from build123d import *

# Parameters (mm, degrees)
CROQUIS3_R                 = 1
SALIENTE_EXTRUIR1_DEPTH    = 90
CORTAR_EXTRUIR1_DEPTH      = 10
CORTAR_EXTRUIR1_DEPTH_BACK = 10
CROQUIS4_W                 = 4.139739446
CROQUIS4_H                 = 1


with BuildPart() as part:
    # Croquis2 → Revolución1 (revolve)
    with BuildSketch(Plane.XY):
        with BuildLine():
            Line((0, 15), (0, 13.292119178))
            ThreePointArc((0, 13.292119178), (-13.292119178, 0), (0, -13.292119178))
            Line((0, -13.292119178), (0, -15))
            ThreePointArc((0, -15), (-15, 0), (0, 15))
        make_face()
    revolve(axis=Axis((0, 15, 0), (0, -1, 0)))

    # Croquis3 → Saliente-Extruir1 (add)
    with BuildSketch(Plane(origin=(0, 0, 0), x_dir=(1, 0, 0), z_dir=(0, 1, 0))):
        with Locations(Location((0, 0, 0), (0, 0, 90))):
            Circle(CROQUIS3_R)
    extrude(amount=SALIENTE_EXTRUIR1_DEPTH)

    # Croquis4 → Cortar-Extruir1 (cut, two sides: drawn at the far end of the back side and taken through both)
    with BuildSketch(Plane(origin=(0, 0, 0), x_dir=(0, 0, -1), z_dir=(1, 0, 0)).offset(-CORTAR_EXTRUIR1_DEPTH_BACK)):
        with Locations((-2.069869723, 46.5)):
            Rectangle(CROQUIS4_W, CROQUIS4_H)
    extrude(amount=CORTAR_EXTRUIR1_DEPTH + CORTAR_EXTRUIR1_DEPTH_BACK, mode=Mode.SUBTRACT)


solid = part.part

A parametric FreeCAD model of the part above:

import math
import FreeCAD as App
import Part
import Sketcher
from FreeCAD import Vector
Q = App.Units.Quantity


def add_polygon(sketch, points):
    """Adds a closed chain of lines whose ends are joined by coincident constraints."""
    first, n = sketch.GeometryCount, len(points)
    for a, b in zip(points, points[1:] + points[:1]):
        sketch.addGeometry(Part.LineSegment(App.Vector(*a, 0), App.Vector(*b, 0)), False)
    for i in range(n):
        sketch.addConstraint(Sketcher.Constraint("Coincident", first + i, 2, first + (i + 1) % n, 1))

doc = App.newDocument("Part")
body = doc.addObject("PartDesign::Body", "Body")

sketch1 = body.newObject("Sketcher::SketchObject", "Sketch")
sketch1.AttachmentSupport = (doc.getObject("XY_Plane"), [""])
sketch1.MapMode = "FlatFace"
sketch1.addGeometry(Part.LineSegment(Vector(0, 13.3, 0), Vector(0, 15, 0)), False)
sketch1.addGeometry(Part.ArcOfCircle(Part.Circle(Vector(0, 0, 0), Vector(0, 0, 1), 15), math.radians(90), math.radians(270)), False)
sketch1.addGeometry(Part.LineSegment(Vector(0, -15, 0), Vector(0, -13.3, 0)), False)
sketch1.addGeometry(Part.ArcOfCircle(Part.Circle(Vector(0, 0, 0), Vector(0, 0, 1), 13.3), math.radians(90), math.radians(270)), False)
sketch1.addConstraint(Sketcher.Constraint("Coincident", 0, 2, 1, 1))
sketch1.addConstraint(Sketcher.Constraint("Coincident", 1, 2, 2, 1))
sketch1.addConstraint(Sketcher.Constraint("Coincident", 2, 2, 3, 2))
sketch1.addConstraint(Sketcher.Constraint("Coincident", 3, 1, 0, 1))
sketch1.addConstraint(Sketcher.Constraint("Vertical", 0))
sketch1.addConstraint(Sketcher.Constraint("Vertical", 2))
sketch1.addConstraint(Sketcher.Constraint("Coincident", 1, 3, -1, 1))
sketch1.addConstraint(Sketcher.Constraint("Coincident", 3, 3, -1, 1))
sketch1.addConstraint(Sketcher.Constraint("PointOnObject", 0, 2, -2))
sketch1.addConstraint(Sketcher.Constraint("PointOnObject", 1, 2, -2))
sketch1.addConstraint(Sketcher.Constraint("Radius", 1, Q("15 mm")))
sketch1.addConstraint(Sketcher.Constraint("Radius", 3, Q("13.292119 mm")))
revolution = body.newObject("PartDesign::Revolution", "Revolution")
revolution.Profile = sketch1
revolution.ReferenceAxis = (sketch1, ["V_Axis"])
revolution.Angle = 360

sketch2 = body.newObject("Sketcher::SketchObject", "Sketch001")
sketch2.AttachmentSupport = (doc.getObject("XZ_Plane"), [""])
sketch2.MapMode = "FlatFace"
sketch2.addGeometry(Part.Circle(Vector(0, 0, 0), Vector(0, 0, 1), 1), False)
sketch2.addConstraint(Sketcher.Constraint("Coincident", 0, 3, -1, 1))
sketch2.addConstraint(Sketcher.Constraint("Diameter", 0, Q("2 mm")))
pad1 = body.newObject("PartDesign::Pad", "Pad")
pad1.Profile = sketch2
pad1.Length = 90
pad1.Reversed = True

sketch3 = body.newObject("Sketcher::SketchObject", "Sketch002")
sketch3.AttachmentSupport = (doc.getObject("YZ_Plane"), [""])
sketch3.MapMode = "FlatFace"
add_polygon(sketch3, [(47, 4.1), (46, 4.1), (46, 0), (47, 0)])
sketch3.addConstraint(Sketcher.Constraint("Horizontal", 0))
sketch3.addConstraint(Sketcher.Constraint("Vertical", 1))
sketch3.addConstraint(Sketcher.Constraint("Horizontal", 2))
sketch3.addConstraint(Sketcher.Constraint("Vertical", 3))
sketch3.addConstraint(Sketcher.Constraint("PointOnObject", 1, 2, -1))
sketch3.addConstraint(Sketcher.Constraint("DistanceX", 0, 2, 0, 1, Q("1 mm")))
sketch3.addConstraint(Sketcher.Constraint("DistanceX", -1, 1, 0, 2, Q("46 mm")))
sketch3.addConstraint(Sketcher.Constraint("DistanceY", 1, 2, 1, 1, Q("4.139739 mm")))
pocket1 = body.newObject("PartDesign::Pocket", "Pocket")
pocket1.Profile = sketch3
pocket1.Type = "ThroughAll"
pocket1.Midplane = True

doc.recompute()
